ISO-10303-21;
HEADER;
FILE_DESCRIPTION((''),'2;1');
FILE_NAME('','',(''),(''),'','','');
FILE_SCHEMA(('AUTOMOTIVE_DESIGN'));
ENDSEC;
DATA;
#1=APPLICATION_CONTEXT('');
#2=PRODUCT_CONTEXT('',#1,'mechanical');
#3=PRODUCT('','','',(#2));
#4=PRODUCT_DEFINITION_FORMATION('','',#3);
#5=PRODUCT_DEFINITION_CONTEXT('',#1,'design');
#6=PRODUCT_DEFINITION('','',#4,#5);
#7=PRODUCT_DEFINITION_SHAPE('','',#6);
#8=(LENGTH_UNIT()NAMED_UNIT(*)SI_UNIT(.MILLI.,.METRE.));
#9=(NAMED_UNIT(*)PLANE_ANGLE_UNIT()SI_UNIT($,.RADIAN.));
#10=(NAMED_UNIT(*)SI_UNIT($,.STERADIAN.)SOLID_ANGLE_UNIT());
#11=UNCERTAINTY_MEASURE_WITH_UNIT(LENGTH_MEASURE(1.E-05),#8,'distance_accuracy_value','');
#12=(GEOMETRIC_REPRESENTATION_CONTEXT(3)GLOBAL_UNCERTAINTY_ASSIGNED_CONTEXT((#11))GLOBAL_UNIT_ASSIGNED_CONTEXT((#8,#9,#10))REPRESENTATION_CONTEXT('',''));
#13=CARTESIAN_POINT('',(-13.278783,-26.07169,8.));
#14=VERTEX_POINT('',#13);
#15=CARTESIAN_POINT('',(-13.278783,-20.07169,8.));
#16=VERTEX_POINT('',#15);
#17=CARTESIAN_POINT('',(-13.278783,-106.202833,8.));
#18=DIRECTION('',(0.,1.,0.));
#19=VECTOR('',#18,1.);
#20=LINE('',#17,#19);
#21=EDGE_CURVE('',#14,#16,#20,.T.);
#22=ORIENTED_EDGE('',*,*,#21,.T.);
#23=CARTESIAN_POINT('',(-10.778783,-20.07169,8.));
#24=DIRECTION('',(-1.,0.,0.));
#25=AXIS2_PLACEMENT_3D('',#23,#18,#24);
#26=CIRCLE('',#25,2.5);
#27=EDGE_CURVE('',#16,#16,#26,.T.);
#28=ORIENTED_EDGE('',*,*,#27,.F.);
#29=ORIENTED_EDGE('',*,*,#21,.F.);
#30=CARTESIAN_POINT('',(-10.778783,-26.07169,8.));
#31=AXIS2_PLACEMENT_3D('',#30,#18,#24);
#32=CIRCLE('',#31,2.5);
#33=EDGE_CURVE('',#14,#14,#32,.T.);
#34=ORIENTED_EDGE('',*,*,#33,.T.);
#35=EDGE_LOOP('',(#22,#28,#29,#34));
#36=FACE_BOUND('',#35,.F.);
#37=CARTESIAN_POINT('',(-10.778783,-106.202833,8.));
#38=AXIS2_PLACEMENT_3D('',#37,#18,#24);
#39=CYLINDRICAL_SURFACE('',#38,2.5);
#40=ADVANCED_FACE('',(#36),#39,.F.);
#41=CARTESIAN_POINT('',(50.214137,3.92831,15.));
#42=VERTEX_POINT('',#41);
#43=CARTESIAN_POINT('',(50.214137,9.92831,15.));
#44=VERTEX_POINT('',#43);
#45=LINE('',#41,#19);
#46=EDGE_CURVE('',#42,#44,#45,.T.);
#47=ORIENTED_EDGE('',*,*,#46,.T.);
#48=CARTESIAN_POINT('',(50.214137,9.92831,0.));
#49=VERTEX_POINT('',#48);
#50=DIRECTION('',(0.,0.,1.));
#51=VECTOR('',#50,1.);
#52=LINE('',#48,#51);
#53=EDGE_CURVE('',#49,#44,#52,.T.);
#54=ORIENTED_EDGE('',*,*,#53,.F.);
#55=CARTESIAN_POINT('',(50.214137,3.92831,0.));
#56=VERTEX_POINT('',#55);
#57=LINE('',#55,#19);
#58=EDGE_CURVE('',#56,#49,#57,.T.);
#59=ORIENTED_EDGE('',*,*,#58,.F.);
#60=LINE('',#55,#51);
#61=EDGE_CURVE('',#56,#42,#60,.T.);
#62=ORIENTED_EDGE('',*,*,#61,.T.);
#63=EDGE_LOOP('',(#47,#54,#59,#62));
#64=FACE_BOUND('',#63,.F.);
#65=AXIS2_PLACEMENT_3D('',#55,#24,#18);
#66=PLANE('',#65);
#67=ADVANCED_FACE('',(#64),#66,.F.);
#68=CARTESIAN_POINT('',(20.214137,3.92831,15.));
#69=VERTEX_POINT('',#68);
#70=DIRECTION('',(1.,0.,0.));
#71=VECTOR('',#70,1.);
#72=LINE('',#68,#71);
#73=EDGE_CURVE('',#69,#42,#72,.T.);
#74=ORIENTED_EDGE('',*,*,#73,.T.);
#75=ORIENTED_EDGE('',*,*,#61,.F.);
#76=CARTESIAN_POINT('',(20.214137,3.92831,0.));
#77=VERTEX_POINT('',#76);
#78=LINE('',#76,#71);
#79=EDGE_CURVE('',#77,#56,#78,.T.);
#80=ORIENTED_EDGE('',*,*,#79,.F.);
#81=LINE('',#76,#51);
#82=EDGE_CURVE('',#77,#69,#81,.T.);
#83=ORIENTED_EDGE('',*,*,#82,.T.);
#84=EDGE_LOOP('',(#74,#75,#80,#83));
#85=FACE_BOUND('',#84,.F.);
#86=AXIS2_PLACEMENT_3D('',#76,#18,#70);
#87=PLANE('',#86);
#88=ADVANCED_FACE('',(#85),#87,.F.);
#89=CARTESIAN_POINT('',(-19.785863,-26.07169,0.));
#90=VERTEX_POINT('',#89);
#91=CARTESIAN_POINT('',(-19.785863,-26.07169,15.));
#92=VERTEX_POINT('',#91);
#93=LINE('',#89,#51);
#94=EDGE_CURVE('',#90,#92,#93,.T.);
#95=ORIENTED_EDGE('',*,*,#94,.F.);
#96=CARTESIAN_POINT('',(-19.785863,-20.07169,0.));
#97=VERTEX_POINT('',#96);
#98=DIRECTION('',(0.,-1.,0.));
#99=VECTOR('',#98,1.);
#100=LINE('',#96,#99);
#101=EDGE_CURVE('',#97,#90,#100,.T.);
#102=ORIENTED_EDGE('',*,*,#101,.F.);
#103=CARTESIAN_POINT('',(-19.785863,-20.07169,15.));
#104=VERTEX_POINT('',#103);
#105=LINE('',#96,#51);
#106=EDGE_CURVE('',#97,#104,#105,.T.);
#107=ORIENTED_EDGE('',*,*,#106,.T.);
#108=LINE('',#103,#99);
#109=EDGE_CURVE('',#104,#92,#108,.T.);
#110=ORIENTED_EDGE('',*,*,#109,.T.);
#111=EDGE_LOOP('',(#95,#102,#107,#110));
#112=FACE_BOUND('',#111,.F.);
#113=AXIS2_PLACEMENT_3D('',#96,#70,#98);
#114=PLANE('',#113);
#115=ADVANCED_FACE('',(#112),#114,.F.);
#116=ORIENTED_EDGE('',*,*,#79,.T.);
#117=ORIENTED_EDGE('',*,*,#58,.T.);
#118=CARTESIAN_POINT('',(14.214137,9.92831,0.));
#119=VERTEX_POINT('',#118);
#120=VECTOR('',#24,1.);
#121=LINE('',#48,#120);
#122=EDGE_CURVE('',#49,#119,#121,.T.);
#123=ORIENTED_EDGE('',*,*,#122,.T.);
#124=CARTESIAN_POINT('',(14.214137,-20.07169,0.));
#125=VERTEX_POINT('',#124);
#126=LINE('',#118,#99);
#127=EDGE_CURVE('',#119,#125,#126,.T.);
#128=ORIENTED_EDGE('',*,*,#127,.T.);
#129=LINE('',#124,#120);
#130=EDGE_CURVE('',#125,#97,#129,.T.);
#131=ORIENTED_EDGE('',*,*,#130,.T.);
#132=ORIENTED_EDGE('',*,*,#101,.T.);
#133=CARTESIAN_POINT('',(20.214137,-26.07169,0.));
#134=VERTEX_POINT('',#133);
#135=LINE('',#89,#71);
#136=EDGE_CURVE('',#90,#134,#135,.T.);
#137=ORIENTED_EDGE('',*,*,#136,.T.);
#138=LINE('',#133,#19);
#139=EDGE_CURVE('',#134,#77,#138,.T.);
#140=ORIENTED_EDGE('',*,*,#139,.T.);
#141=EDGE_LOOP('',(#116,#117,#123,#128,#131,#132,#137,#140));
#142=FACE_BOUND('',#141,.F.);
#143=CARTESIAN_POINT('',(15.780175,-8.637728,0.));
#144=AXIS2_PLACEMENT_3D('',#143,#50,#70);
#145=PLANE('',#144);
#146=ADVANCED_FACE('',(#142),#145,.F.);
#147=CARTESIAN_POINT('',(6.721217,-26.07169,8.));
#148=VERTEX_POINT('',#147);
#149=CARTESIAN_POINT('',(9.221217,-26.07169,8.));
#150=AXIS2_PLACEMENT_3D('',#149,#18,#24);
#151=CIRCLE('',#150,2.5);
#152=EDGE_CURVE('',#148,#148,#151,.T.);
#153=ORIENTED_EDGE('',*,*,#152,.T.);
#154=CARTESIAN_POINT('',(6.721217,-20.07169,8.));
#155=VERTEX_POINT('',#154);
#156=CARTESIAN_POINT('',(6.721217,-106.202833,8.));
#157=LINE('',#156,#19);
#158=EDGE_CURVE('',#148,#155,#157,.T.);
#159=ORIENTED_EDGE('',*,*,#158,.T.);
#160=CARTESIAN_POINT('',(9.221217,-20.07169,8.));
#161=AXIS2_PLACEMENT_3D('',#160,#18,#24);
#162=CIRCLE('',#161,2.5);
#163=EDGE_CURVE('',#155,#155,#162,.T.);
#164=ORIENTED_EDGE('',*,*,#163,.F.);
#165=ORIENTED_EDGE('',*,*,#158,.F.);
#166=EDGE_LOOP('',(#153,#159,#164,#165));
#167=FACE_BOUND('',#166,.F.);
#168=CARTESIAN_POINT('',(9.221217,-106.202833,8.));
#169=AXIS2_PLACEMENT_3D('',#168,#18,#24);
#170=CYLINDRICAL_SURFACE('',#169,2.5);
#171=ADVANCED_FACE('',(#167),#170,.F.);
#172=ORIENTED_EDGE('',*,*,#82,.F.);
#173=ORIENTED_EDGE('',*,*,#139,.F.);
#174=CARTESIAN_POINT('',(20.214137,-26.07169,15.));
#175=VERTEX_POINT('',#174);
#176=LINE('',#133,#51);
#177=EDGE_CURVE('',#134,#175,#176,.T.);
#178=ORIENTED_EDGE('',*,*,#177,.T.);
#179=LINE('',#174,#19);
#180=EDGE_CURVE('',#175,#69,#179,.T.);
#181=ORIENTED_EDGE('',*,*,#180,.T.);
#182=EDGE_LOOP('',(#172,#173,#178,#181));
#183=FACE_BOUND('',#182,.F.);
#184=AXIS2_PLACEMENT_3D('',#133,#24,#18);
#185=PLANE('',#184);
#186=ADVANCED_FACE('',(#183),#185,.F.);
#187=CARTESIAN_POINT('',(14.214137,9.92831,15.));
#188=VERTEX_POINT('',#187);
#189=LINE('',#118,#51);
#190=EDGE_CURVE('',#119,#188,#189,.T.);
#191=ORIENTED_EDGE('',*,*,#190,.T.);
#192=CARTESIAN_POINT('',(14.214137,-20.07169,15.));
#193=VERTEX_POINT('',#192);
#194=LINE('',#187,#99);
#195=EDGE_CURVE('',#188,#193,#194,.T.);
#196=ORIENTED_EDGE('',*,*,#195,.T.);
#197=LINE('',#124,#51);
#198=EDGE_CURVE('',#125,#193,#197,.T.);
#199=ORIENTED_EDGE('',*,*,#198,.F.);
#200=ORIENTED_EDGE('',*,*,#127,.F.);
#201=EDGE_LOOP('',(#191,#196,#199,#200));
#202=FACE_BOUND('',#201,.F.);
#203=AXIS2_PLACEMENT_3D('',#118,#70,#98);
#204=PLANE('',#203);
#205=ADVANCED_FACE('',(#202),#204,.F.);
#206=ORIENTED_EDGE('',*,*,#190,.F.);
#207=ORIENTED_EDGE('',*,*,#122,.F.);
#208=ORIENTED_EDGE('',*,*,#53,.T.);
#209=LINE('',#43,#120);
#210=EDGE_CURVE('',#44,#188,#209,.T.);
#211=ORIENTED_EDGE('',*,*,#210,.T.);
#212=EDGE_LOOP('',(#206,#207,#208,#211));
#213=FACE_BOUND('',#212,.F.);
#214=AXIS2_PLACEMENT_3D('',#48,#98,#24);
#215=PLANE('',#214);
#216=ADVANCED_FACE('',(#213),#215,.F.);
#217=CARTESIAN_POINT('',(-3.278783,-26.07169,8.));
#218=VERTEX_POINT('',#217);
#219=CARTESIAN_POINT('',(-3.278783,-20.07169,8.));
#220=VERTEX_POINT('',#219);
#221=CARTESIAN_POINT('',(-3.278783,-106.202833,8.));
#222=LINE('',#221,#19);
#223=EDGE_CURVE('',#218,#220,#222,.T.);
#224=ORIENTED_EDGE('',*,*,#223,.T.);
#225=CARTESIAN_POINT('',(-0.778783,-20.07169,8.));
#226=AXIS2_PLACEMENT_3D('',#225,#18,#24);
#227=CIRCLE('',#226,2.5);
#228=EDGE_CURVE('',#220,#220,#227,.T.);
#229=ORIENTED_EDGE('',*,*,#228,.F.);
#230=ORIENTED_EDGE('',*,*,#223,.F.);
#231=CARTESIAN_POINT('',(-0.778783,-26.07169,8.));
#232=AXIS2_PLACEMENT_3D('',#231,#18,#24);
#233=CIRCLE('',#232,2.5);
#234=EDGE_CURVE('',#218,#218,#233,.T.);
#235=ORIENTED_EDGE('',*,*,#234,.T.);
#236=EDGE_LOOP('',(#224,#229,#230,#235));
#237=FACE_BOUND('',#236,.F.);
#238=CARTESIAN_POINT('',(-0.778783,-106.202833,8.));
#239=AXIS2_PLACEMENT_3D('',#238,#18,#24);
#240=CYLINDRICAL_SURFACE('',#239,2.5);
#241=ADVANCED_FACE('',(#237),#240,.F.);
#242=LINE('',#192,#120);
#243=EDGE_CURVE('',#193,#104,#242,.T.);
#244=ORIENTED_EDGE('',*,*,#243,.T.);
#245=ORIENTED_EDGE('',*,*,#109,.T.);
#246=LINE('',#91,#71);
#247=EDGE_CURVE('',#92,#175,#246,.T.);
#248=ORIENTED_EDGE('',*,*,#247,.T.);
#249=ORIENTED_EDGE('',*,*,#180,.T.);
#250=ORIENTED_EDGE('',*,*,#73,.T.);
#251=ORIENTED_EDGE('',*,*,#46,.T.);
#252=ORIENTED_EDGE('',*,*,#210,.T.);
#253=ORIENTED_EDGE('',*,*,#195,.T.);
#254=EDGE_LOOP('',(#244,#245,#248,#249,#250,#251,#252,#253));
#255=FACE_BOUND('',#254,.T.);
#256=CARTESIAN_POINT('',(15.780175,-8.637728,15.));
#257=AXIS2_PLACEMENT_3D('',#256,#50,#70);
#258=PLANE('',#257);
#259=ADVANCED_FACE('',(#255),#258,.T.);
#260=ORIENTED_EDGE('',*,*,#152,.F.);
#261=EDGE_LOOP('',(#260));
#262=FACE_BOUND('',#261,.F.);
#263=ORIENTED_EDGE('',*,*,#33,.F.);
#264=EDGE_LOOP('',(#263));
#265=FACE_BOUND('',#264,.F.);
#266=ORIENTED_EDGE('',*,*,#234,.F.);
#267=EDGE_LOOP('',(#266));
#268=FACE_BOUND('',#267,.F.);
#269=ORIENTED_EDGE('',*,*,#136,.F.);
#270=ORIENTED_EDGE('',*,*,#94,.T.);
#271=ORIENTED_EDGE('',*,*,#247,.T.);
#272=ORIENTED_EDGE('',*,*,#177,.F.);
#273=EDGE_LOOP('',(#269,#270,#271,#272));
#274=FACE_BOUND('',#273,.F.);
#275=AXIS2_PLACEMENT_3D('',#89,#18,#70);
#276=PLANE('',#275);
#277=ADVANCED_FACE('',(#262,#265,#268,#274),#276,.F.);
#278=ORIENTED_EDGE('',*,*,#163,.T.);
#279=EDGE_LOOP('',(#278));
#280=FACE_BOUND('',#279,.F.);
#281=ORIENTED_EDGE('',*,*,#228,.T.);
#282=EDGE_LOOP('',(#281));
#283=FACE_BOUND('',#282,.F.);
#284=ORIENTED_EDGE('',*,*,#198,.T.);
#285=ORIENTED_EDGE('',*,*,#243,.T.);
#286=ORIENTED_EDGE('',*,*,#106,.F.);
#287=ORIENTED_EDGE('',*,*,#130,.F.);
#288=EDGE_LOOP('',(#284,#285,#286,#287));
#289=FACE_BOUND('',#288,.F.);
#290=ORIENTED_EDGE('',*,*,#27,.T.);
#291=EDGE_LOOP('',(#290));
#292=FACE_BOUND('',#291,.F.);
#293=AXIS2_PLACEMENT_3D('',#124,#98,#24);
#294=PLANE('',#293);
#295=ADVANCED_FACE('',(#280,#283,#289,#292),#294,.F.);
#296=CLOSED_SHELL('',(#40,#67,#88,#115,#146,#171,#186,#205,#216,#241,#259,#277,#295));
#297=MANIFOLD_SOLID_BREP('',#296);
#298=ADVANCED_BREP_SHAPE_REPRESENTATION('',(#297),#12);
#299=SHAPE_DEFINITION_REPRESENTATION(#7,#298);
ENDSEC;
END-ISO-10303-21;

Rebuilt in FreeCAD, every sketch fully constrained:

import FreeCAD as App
import Part
import Sketcher

V = App.Vector

doc = App.newDocument("Part")
body = doc.addObject("PartDesign::Body", "Body")

# Sketch on XY plane
sketch1 = doc.addObject("Sketcher::SketchObject", "Sketch")
body.addObject(sketch1)
sketch1.AttachmentSupport = (doc.XY_Plane, [""])
sketch1.MapMode = "FlatFace"
sketch1.addGeometry(Part.LineSegment(V(14, -20, 0), V(-20, -20, 0)), False)
sketch1.addGeometry(Part.LineSegment(V(-20, -20, 0), V(-20, -26, 0)), False)
sketch1.addGeometry(Part.LineSegment(V(-20, -26, 0), V(20, -26, 0)), False)
sketch1.addGeometry(Part.LineSegment(V(20, -26, 0), V(20, 4, 0)), False)
sketch1.addGeometry(Part.LineSegment(V(20, 4, 0), V(50, 4, 0)), False)
sketch1.addGeometry(Part.LineSegment(V(50, 4, 0), V(50, 10, 0)), False)
sketch1.addGeometry(Part.LineSegment(V(50, 10, 0), V(14, 10, 0)), False)
sketch1.addGeometry(Part.LineSegment(V(14, 10, 0), V(14, -20, 0)), False)
sketch1.addConstraint(Sketcher.Constraint("Coincident", 0, 2, 1, 1))
sketch1.addConstraint(Sketcher.Constraint("Coincident", 1, 2, 2, 1))
sketch1.addConstraint(Sketcher.Constraint("Coincident", 2, 2, 3, 1))
sketch1.addConstraint(Sketcher.Constraint("Coincident", 3, 2, 4, 1))
sketch1.addConstraint(Sketcher.Constraint("Coincident", 4, 2, 5, 1))
sketch1.addConstraint(Sketcher.Constraint("Coincident", 5, 2, 6, 1))
sketch1.addConstraint(Sketcher.Constraint("Coincident", 6, 2, 7, 1))
sketch1.addConstraint(Sketcher.Constraint("Coincident", 7, 2, 0, 1))
sketch1.addConstraint(Sketcher.Constraint("Horizontal", 0))
sketch1.addConstraint(Sketcher.Constraint("Vertical", 1))
sketch1.addConstraint(Sketcher.Constraint("Horizontal", 2))
sketch1.addConstraint(Sketcher.Constraint("Vertical", 3))
sketch1.addConstraint(Sketcher.Constraint("Horizontal", 4))
sketch1.addConstraint(Sketcher.Constraint("Vertical", 5))
sketch1.addConstraint(Sketcher.Constraint("Horizontal", 6))
sketch1.addConstraint(Sketcher.Constraint("Vertical", 7))
sketch1.addConstraint(Sketcher.Constraint("Equal", 4, 3))
sketch1.addConstraint(Sketcher.Constraint("Equal", 1, 5))
sketch1.addConstraint(Sketcher.Constraint("DistanceX", 0, 2, 0, 1, 34.0))
sketch1.addConstraint(Sketcher.Constraint("DistanceX", 2, 1, 2, 2, 40.0))
sketch1.addConstraint(Sketcher.Constraint("DistanceX", 4, 1, 4, 2, 30.0))
sketch1.addConstraint(Sketcher.Constraint("DistanceY", 1, 2, 1, 1, 6.0))
sketch1.addConstraint(Sketcher.Constraint("DistanceY", 0, 2, -1, 1, 20.07169))
sketch1.addConstraint(Sketcher.Constraint("DistanceX", 0, 2, -1, 1, 19.785863))
pad1 = doc.addObject("PartDesign::Pad", "Pad")
body.addObject(pad1)
pad1.Profile = sketch1
pad1.Length = 15

# Sketch on XZ plane
sketch2 = doc.addObject("Sketcher::SketchObject", "Sketch001")
body.addObject(sketch2)
sketch2.AttachmentSupport = (doc.XZ_Plane, [""])
sketch2.MapMode = "FlatFace"
sketch2.AttachmentOffset = App.Placement(V(0, 0, 26.07169), App.Rotation())
sketch2.addGeometry(Part.Circle(V(9.2, 8, 0), V(0, 0, 1), 2.5), False)
sketch2.addGeometry(Part.Circle(V(-0.8, 8, 0), V(0, 0, 1), 2.5), False)
sketch2.addGeometry(Part.Circle(V(-10.8, 8, 0), V(0, 0, 1), 2.5), False)
sketch2.addConstraint(Sketcher.Constraint("Equal", 0, 1))
sketch2.addConstraint(Sketcher.Constraint("Equal", 1, 2))
sketch2.addConstraint(Sketcher.Constraint("Horizontal", 0, 3, 1, 3))
sketch2.addConstraint(Sketcher.Constraint("Horizontal", 1, 3, 2, 3))
sketch2.addConstraint(Sketcher.Constraint("Diameter", 0, 5.0))
sketch2.addConstraint(Sketcher.Constraint("DistanceY", -1, 1, 0, 3, 8.0))
sketch2.addConstraint(Sketcher.Constraint("DistanceX", 1, 3, 0, 3, 10.0))
sketch2.addConstraint(Sketcher.Constraint("DistanceX", 2, 3, 1, 3, 10.0))
sketch2.addConstraint(Sketcher.Constraint("DistanceX", -1, 1, 0, 3, 9.221217))
doc.recompute()
hole = doc.addObject("PartDesign::Hole", "Hole")
body.addObject(hole)
hole.Profile = sketch2
hole.ThreadType = "None"
hole.Diameter = 5
hole.DepthType = "ThroughAll"

doc.recompute()
